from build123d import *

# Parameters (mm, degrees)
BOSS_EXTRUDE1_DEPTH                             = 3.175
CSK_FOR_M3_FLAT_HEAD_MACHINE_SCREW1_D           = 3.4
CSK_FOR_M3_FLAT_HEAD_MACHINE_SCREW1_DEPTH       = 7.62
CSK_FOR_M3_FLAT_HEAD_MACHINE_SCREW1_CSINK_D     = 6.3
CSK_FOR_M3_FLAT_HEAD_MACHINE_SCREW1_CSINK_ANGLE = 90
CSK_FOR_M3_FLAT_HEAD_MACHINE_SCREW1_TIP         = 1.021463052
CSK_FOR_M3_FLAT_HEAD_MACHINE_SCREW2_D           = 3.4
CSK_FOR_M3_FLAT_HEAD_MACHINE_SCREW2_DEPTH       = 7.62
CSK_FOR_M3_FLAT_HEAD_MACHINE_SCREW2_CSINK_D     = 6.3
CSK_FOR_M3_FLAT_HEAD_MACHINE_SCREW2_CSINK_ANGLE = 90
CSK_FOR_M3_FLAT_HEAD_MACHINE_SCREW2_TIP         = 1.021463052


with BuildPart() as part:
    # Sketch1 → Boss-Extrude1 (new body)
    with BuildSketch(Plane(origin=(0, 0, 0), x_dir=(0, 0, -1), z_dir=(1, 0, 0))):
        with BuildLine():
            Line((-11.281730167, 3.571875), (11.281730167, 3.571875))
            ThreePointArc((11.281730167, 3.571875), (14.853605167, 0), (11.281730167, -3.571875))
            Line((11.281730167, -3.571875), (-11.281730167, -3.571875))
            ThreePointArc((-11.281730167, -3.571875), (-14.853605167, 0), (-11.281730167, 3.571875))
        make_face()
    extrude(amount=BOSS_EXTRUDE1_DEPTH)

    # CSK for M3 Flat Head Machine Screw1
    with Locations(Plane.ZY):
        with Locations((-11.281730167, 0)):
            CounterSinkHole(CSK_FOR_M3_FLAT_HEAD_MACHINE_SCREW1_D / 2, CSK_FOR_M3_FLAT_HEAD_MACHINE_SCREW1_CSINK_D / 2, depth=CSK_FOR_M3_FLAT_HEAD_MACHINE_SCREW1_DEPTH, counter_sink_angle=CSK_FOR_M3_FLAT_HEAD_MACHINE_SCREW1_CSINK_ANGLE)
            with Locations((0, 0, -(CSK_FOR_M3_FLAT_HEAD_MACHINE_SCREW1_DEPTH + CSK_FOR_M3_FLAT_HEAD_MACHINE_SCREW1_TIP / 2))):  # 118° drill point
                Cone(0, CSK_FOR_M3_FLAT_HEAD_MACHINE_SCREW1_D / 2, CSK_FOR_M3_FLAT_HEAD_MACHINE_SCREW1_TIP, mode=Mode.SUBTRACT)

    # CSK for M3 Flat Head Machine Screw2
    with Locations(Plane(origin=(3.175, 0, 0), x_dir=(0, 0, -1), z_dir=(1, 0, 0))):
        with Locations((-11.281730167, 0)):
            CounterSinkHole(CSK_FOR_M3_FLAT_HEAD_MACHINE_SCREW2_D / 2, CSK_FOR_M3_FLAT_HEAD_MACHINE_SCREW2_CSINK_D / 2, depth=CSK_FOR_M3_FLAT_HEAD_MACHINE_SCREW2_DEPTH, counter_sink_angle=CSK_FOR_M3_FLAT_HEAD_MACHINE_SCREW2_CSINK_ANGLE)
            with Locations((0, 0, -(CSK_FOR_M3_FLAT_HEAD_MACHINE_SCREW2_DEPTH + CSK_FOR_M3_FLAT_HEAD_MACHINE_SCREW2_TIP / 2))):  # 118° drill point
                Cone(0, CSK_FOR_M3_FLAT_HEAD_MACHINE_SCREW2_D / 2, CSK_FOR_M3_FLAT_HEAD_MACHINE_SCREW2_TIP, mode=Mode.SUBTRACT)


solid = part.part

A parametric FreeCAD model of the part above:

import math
import FreeCAD as App
import Part
import Sketcher
Q = App.Units.Quantity

doc = App.newDocument("Part")
body = doc.addObject("PartDesign::Body", "Body")

# Sketch on YZ plane
sketch1 = body.newObject("Sketcher::SketchObject", "Sketch")
sketch1.AttachmentSupport = (doc.getObject("YZ_Plane"), [""])
sketch1.MapMode = "FlatFace"
sketch1.addGeometry(Part.LineSegment(App.Vector(3.6, -11.3, 0), App.Vector(3.6, 11.3, 0)), False)
sketch1.addGeometry(Part.ArcOfCircle(Part.Circle(App.Vector(0, 11.3, 0), App.Vector(0, 0, 1), 3.6), math.radians(0), math.radians(180)), False)
sketch1.addGeometry(Part.LineSegment(App.Vector(-3.6, 11.3, 0), App.Vector(-3.6, -11.3, 0)), False)
sketch1.addGeometry(Part.ArcOfCircle(Part.Circle(App.Vector(0, -11.3, 0), App.Vector(0, 0, 1), 3.6), math.radians(180), math.radians(360)), False)
sketch1.addConstraint(Sketcher.Constraint("Tangent", 0, 2, 1, 1))
sketch1.addConstraint(Sketcher.Constraint("Tangent", 1, 2, 2, 1))
sketch1.addConstraint(Sketcher.Constraint("Tangent", 2, 2, 3, 1))
sketch1.addConstraint(Sketcher.Constraint("Tangent", 3, 2, 0, 1))
sketch1.addConstraint(Sketcher.Constraint("Vertical", 0))
sketch1.addConstraint(Sketcher.Constraint("Vertical", 2))
sketch1.addConstraint(Sketcher.Constraint("Symmetric", 1, 3, 3, 3, -1, 1))
sketch1.addConstraint(Sketcher.Constraint("Radius", 1, Q("0.140625 in")))
sketch1.addConstraint(Sketcher.Constraint("DistanceY", 0, 1, 0, 2, 22.56346))
pad1 = body.newObject("PartDesign::Pad", "Pad")
pad1.Profile = sketch1
pad1.Length = Q("0.125 in")

# Sketch on YZ plane
sketch2 = body.newObject("Sketcher::SketchObject", "Sketch001")
sketch2.AttachmentSupport = (doc.getObject("YZ_Plane"), [""])
sketch2.MapMode = "FlatFace"
sketch2.addGeometry(Part.Circle(App.Vector(0, -11.3, 0), App.Vector(0, 0, 1), 1.7), False)
sketch2.addConstraint(Sketcher.Constraint("PointOnObject", 0, 3, -2))
sketch2.addConstraint(Sketcher.Constraint("Diameter", 0, 3.4))
sketch2.addConstraint(Sketcher.Constraint("DistanceY", 0, 3, -1, 1, 11.28173))
doc.recompute()
hole = body.newObject("PartDesign::Hole", "Hole")
hole.Profile = sketch2
hole.ThreadType = "None"
hole.Diameter = 3.4
hole.DepthType = "Dimension"
hole.Depth = Q("0.3 in")
hole.DrillPoint = "Angled"
hole.DrillPointAngle = 118
hole.HoleCutType = "Countersink"
hole.HoleCutDiameter = 6.3
hole.HoleCutCountersinkAngle = 90
hole.Reversed = True

# Sketch on YZ plane
sketch3 = body.newObject("Sketcher::SketchObject", "Sketch002")
sketch3.AttachmentSupport = (doc.getObject("YZ_Plane"), [""])
sketch3.MapMode = "FlatFace"
sketch3.AttachmentOffset = App.Placement(App.Vector(0, 0, 0.125 * 25.4), App.Rotation())
sketch3.addGeometry(Part.Circle(App.Vector(0, 11.3, 0), App.Vector(0, 0, 1), 1.7), False)
sketch3.addConstraint(Sketcher.Constraint("PointOnObject", 0, 3, -2))
sketch3.addConstraint(Sketcher.Constraint("Diameter", 0, 3.4))
sketch3.addConstraint(Sketcher.Constraint("DistanceY", -1, 1, 0, 3, 11.28173))
doc.recompute()
hole2 = body.newObject("PartDesign::Hole", "Hole001")
hole2.Profile = sketch3
hole2.ThreadType = "None"
hole2.Diameter = 3.4
hole2.DepthType = "Dimension"
hole2.Depth = Q("0.3 in")
hole2.DrillPoint = "Angled"
hole2.DrillPointAngle = 118
hole2.HoleCutType = "Countersink"
hole2.HoleCutDiameter = 6.3
hole2.HoleCutCountersinkAngle = 90

doc.recompute()
